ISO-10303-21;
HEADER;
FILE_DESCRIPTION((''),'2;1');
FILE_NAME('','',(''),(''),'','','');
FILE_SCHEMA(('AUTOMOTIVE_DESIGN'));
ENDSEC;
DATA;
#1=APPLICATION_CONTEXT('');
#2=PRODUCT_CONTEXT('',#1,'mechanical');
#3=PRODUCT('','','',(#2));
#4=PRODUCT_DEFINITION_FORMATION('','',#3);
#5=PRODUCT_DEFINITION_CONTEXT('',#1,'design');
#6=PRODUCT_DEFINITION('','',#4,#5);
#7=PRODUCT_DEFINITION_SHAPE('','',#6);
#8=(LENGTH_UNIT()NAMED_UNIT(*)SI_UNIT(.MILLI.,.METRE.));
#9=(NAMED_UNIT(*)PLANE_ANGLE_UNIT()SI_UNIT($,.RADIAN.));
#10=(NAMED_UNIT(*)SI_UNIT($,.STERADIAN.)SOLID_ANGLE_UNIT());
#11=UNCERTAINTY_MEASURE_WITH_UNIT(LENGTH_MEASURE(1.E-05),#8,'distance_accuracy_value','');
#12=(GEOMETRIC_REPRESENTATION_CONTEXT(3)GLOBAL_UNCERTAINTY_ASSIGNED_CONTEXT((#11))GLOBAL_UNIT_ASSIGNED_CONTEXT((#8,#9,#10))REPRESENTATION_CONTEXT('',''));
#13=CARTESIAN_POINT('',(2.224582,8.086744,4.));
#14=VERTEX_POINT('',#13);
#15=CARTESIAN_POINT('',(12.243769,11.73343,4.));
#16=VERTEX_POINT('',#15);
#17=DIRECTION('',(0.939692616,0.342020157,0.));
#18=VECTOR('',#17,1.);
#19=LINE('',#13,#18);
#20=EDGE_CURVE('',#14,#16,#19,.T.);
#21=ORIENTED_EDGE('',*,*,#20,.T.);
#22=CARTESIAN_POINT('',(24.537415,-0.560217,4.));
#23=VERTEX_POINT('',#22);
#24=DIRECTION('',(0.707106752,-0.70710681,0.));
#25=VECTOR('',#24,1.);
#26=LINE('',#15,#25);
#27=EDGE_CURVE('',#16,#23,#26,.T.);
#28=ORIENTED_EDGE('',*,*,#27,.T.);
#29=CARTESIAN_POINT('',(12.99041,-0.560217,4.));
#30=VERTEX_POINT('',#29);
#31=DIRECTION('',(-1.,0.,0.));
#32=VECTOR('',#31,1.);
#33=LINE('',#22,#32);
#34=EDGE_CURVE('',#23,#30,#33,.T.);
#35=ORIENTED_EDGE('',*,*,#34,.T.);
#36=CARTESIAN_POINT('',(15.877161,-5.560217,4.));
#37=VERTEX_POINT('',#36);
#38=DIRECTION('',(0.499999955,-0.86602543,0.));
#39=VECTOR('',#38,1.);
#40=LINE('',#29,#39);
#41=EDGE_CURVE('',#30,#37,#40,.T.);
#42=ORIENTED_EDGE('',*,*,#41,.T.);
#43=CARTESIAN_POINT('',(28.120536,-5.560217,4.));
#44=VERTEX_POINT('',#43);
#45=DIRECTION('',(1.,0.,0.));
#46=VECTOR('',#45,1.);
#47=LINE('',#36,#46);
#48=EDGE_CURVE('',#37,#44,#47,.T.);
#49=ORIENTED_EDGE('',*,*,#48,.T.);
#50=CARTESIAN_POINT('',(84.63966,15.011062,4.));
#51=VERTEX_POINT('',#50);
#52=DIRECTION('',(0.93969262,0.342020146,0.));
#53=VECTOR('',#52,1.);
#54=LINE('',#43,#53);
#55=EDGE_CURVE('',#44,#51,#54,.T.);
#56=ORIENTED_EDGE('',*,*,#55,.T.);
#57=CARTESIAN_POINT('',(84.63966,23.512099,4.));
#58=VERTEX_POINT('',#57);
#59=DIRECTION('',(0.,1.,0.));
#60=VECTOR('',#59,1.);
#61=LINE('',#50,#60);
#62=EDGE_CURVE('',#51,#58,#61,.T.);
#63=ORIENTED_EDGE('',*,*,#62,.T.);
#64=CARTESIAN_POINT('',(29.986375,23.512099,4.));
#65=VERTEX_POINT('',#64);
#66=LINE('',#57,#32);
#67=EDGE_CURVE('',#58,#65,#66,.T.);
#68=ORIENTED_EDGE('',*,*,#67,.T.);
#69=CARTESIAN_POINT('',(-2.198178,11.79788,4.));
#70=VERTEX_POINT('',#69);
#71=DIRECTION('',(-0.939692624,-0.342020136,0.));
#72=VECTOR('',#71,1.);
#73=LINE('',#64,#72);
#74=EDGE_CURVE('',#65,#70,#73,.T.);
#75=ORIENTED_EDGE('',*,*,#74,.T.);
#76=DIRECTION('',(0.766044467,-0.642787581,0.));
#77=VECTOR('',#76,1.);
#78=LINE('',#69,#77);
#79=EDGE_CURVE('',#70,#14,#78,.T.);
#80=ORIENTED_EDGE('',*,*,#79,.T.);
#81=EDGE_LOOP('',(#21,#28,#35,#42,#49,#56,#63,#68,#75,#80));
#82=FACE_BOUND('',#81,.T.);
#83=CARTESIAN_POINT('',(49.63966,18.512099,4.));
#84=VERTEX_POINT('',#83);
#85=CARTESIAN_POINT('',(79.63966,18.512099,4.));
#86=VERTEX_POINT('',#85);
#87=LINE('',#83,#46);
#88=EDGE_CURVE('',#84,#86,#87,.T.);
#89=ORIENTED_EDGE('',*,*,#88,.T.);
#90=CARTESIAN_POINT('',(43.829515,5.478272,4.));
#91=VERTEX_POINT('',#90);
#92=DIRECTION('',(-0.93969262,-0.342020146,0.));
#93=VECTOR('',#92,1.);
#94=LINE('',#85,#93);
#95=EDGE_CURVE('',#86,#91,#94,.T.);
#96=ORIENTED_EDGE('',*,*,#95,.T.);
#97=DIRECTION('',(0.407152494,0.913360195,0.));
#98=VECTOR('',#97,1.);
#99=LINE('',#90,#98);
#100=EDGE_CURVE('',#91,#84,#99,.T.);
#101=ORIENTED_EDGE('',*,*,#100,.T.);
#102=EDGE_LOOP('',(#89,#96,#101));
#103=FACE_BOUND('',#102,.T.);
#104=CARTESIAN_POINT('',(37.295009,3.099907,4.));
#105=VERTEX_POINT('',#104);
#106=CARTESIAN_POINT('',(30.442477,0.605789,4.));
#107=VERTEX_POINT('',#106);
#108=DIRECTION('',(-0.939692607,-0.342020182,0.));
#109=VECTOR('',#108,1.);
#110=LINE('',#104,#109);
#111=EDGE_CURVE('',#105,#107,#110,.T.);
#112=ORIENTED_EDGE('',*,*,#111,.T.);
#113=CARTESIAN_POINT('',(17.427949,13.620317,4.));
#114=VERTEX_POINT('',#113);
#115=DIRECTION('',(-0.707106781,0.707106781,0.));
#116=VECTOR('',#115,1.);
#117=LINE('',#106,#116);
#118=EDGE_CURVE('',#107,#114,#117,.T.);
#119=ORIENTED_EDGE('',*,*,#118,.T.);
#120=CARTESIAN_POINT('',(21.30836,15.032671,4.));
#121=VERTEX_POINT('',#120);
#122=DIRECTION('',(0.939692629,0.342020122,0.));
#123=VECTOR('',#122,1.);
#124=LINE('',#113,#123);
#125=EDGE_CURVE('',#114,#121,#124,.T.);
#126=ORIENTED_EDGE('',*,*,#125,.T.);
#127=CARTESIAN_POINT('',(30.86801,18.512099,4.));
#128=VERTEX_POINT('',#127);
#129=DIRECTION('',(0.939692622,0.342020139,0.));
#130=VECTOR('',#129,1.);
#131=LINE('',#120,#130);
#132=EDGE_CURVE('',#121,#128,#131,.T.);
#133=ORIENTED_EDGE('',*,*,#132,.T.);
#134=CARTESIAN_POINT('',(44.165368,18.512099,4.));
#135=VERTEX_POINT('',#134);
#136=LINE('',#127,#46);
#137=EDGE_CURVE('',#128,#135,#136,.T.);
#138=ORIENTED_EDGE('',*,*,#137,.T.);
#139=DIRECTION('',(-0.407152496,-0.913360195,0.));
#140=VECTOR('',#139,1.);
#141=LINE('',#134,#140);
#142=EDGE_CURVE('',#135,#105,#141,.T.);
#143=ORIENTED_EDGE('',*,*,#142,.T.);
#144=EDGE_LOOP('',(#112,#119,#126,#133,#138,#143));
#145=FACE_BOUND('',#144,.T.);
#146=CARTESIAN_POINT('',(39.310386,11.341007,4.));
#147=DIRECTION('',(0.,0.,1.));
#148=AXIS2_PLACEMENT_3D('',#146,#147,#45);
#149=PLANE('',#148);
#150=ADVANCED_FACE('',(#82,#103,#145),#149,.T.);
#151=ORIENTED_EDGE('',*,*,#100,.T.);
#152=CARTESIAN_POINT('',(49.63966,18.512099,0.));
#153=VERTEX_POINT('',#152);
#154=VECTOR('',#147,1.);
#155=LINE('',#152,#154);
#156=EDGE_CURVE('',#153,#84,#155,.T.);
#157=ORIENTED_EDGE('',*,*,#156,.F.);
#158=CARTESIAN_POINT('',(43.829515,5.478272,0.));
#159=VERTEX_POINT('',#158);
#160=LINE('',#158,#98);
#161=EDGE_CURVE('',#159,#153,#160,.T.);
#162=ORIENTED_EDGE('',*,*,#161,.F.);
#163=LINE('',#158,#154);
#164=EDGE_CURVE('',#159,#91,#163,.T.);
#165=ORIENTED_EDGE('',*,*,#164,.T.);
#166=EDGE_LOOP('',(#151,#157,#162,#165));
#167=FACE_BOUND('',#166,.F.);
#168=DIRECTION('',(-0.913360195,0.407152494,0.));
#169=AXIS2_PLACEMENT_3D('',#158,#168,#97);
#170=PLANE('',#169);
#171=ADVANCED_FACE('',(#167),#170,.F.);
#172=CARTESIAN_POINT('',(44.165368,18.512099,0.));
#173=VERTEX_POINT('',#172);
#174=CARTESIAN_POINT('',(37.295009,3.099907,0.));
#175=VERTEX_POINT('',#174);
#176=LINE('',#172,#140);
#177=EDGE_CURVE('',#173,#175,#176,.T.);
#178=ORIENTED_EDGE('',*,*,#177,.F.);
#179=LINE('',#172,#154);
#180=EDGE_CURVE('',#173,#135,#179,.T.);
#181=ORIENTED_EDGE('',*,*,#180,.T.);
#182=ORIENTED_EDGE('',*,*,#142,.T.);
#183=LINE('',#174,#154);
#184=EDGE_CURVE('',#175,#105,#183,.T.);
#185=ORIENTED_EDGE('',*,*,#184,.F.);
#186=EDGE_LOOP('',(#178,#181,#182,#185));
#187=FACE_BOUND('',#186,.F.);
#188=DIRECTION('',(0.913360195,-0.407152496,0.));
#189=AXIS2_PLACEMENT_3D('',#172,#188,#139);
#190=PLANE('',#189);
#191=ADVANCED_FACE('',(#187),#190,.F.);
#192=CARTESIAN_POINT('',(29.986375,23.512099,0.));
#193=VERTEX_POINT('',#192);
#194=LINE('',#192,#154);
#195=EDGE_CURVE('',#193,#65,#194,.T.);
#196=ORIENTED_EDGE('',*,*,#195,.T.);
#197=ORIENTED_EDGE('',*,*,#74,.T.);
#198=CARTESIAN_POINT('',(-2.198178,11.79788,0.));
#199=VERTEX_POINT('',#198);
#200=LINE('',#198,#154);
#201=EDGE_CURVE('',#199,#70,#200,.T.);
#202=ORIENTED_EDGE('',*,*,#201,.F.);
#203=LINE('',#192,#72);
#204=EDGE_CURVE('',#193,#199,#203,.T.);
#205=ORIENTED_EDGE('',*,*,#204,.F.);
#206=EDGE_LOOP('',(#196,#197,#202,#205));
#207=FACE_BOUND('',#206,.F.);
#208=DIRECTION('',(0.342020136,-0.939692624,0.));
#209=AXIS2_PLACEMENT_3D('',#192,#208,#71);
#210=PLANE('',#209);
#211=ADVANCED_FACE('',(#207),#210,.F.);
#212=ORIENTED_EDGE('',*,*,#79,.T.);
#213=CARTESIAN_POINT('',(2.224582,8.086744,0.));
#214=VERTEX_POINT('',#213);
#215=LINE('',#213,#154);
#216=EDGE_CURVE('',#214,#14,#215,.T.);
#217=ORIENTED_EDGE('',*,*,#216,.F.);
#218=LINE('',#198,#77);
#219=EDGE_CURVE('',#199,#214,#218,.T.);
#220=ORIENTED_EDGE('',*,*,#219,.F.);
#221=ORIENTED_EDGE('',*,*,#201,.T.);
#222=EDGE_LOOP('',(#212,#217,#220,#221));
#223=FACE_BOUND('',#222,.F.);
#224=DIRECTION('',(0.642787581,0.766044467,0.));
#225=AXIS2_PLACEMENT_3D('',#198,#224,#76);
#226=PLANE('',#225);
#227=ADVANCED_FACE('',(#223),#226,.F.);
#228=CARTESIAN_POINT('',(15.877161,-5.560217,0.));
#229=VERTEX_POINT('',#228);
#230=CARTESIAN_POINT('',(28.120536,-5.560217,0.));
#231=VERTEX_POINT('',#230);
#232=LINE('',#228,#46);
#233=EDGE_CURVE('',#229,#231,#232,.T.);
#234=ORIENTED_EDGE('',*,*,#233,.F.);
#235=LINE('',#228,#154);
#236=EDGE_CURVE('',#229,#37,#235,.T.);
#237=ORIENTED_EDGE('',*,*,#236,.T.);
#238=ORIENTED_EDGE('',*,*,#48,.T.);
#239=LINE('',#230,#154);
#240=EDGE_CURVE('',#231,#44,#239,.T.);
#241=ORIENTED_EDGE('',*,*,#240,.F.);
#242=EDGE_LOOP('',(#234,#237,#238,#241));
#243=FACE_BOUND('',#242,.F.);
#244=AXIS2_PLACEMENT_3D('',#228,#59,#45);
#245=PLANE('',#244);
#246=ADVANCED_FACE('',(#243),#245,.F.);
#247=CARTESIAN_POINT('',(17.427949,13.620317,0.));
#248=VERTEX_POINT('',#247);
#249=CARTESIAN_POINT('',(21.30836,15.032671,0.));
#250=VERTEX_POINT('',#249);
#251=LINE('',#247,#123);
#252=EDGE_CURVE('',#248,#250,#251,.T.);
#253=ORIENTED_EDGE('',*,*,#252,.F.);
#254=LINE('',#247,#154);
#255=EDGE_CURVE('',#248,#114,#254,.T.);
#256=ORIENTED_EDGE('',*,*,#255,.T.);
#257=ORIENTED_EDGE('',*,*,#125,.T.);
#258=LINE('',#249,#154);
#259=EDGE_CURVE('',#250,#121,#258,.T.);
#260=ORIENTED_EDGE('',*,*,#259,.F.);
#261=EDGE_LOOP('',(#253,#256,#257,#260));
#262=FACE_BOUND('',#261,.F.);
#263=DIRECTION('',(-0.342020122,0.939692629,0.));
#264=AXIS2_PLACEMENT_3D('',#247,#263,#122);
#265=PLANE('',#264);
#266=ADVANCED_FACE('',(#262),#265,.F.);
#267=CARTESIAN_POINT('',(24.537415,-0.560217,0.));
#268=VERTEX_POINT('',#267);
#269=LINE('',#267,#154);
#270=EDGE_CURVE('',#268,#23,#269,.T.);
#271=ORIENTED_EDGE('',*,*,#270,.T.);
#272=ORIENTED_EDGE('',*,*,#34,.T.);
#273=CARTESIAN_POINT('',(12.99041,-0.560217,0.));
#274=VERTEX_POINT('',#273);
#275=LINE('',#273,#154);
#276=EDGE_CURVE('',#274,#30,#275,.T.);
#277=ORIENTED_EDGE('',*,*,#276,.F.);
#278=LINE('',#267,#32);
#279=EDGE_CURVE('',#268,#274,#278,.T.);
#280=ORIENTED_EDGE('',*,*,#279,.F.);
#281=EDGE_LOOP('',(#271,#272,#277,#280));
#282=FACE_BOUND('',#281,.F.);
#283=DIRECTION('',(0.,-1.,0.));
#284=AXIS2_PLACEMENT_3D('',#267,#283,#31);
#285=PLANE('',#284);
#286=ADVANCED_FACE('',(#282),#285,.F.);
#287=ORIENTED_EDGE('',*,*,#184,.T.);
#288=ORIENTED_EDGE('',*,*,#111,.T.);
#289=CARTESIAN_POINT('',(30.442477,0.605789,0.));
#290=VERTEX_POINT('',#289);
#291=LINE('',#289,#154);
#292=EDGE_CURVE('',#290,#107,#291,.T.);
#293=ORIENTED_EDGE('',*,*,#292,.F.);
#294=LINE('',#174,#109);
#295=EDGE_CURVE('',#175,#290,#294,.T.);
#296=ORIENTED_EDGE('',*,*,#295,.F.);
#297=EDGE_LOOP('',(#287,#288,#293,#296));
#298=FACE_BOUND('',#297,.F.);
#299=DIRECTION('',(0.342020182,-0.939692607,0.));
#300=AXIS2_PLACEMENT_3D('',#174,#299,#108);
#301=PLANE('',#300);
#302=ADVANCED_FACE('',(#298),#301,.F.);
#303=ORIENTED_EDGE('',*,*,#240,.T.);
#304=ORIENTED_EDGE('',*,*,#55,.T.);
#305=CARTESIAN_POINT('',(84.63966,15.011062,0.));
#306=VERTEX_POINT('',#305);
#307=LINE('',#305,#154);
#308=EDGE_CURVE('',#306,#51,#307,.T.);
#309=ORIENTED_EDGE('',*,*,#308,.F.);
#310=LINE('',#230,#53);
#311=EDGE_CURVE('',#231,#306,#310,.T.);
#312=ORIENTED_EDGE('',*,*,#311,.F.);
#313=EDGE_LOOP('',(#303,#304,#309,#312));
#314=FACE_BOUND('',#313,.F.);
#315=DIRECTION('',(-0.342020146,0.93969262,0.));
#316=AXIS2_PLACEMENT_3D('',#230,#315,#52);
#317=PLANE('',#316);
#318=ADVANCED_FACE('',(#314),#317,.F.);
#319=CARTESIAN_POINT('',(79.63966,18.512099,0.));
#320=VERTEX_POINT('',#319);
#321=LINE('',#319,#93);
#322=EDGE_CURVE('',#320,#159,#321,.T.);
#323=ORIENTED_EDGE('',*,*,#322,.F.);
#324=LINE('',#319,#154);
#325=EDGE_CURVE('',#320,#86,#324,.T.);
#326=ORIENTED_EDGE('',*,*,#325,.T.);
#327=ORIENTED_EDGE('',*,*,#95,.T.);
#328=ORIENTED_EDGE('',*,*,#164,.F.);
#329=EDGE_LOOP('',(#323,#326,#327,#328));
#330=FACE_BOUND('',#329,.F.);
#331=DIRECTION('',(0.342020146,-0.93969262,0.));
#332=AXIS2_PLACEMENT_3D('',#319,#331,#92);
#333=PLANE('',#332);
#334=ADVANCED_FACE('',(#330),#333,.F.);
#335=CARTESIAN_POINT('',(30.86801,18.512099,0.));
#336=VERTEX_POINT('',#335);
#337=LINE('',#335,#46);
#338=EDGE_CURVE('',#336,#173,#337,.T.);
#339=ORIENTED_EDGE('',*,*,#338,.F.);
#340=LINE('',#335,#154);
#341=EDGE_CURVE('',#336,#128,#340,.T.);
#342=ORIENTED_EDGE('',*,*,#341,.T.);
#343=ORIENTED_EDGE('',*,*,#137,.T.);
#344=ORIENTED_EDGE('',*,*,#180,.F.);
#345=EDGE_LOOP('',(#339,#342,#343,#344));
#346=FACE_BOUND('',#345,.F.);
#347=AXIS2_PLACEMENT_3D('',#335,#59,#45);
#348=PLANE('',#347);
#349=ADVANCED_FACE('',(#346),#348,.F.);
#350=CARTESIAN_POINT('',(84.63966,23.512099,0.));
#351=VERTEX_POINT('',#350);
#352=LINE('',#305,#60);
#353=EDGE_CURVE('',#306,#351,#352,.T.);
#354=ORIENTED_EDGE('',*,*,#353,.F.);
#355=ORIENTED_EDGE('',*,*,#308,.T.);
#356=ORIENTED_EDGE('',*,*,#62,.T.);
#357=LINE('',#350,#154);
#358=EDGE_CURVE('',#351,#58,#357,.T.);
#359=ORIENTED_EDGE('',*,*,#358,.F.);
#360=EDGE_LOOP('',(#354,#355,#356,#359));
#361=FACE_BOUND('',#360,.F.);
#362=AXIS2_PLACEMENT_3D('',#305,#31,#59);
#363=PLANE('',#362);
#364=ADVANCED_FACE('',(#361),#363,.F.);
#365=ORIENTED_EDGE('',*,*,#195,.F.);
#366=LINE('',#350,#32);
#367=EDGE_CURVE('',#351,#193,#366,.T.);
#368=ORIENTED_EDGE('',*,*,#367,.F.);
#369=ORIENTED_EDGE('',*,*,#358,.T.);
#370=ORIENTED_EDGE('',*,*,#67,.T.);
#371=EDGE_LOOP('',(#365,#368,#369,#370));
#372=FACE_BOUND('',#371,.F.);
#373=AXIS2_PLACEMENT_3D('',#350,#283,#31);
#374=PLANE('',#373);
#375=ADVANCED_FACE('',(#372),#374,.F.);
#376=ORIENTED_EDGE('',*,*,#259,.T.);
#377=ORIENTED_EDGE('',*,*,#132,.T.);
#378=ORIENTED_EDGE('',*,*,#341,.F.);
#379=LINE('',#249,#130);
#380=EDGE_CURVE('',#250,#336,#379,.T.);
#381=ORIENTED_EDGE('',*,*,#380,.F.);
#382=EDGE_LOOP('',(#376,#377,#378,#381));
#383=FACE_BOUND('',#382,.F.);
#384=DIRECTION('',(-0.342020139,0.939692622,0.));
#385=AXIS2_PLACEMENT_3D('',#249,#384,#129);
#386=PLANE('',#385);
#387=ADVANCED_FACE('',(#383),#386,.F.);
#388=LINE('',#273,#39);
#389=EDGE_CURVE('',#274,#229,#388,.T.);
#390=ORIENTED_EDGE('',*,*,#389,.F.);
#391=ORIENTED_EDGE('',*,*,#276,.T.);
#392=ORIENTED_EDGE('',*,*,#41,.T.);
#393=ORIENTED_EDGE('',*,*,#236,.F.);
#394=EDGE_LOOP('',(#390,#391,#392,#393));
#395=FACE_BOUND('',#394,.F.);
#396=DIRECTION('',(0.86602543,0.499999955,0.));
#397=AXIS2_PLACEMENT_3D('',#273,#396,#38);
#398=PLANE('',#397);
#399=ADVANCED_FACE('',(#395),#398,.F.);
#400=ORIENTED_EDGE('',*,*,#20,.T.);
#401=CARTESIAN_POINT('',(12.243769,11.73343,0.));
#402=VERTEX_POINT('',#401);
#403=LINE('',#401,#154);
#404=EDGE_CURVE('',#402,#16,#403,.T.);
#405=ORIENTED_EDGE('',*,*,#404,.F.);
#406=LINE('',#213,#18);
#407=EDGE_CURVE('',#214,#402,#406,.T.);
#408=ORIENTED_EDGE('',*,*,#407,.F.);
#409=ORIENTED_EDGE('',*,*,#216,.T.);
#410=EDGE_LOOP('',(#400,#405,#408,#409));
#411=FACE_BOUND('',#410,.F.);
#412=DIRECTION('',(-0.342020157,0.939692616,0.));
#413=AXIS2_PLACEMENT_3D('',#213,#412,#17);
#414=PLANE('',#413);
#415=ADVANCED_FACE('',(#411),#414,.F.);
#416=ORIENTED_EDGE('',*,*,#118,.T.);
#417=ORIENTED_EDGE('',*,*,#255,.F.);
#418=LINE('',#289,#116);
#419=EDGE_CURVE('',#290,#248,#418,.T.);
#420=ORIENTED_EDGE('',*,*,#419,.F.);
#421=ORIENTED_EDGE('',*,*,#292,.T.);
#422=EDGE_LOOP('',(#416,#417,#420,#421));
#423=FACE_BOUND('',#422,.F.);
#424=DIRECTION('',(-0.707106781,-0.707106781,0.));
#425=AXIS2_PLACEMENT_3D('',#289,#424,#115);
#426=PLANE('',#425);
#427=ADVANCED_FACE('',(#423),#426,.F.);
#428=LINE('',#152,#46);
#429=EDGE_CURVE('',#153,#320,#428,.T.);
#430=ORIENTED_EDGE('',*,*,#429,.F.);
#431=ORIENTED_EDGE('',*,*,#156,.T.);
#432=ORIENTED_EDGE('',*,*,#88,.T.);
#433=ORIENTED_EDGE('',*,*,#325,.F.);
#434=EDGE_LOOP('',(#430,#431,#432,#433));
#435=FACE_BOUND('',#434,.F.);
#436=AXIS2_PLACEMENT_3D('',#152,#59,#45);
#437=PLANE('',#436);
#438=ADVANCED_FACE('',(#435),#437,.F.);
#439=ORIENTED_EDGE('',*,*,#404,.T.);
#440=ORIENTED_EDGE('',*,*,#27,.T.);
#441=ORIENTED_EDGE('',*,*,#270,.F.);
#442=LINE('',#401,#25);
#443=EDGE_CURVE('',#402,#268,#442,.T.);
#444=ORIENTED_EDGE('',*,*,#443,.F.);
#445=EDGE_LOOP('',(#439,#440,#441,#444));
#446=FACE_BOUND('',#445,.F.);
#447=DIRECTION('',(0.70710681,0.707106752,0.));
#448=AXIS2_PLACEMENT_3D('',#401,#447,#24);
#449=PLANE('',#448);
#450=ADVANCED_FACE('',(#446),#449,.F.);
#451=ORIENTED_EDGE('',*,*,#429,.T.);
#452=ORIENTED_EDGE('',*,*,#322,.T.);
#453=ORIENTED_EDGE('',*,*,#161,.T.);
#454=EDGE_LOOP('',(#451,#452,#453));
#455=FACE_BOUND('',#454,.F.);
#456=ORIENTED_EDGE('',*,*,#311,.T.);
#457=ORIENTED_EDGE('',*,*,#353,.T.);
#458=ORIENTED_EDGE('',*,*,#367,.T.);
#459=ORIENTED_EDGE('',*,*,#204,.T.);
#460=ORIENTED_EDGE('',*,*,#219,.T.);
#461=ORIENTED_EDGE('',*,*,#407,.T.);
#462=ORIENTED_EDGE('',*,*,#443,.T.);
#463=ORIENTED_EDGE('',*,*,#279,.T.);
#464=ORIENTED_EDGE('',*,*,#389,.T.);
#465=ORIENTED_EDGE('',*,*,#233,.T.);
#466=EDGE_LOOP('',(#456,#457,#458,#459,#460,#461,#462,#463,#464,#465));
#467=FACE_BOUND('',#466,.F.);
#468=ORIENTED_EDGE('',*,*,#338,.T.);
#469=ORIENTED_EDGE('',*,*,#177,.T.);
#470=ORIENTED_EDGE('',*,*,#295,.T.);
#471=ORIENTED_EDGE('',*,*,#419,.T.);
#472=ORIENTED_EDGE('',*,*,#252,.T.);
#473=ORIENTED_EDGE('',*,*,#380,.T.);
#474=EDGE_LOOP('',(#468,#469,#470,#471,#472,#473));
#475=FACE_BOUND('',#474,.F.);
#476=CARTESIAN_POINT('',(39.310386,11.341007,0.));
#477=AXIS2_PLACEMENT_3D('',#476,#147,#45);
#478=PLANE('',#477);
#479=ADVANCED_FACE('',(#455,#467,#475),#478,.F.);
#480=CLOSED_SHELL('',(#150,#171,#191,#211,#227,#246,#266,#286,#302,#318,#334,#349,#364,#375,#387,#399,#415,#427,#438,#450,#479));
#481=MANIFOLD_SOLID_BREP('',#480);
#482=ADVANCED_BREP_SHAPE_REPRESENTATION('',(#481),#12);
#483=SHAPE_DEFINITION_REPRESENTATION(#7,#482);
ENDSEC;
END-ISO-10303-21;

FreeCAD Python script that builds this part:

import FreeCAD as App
import Part
import Sketcher
from FreeCAD import Vector
Q = App.Units.Quantity


def add_polygon(sketch, points):
    """Adds a closed chain of lines whose ends are joined by coincident constraints."""
    first, n = sketch.GeometryCount, len(points)
    for a, b in zip(points, points[1:] + points[:1]):
        sketch.addGeometry(Part.LineSegment(App.Vector(*a, 0), App.Vector(*b, 0)), False)
    for i in range(n):
        sketch.addConstraint(Sketcher.Constraint("Coincident", first + i, 2, first + (i + 1) % n, 1))

doc = App.newDocument("Part")
params = doc.addObject("Spreadsheet::Sheet", "Params")
for row, (alias, value) in enumerate([
    ("sketch1_width", "30 mm"),
    ("pad1_length", "4 mm"),
], start=1):
    params.set(f"A{row}", alias)
    params.set(f"B{row}", "=" + value)
    params.setAlias(f"B{row}", alias)

body = doc.addObject("PartDesign::Body", "Body")

sketch1 = body.newObject("Sketcher::SketchObject", "Sketch")
sketch1.AttachmentSupport = (doc.getObject("XY_Plane"), [""])
sketch1.MapMode = "FlatFace"
add_polygon(sketch1, [(24.5, -0.6), (13, -0.6), (15.9, -5.6), (28.1, -5.6), (84.6, 15), (84.6, 23.5), (30, 23.5), (-2.2, 11.8), (2.2, 8.1), (12.2, 11.7)])
add_polygon(sketch1, [(21.3, 15), (30.9, 18.5), (44.2, 18.5), (37.3, 3.1), (30.4, 0.6), (17.4, 13.6)])
add_polygon(sketch1, [(79.6, 18.5), (43.8, 5.5), (49.6, 18.5)])
sketch1.addConstraint(Sketcher.Constraint("Horizontal", 0))
sketch1.addConstraint(Sketcher.Constraint("Horizontal", 2))
sketch1.addConstraint(Sketcher.Constraint("Vertical", 4))
sketch1.addConstraint(Sketcher.Constraint("Horizontal", 5))
sketch1.addConstraint(Sketcher.Constraint("Horizontal", 11))
sketch1.addConstraint(Sketcher.Constraint("Horizontal", 18))
sketch1.addConstraint(Sketcher.Constraint("Parallel", 3, 6))
sketch1.addConstraint(Sketcher.Constraint("Parallel", 6, 8))
sketch1.addConstraint(Sketcher.Constraint("Parallel", 8, 10))
sketch1.addConstraint(Sketcher.Constraint("Parallel", 10, 13))
sketch1.addConstraint(Sketcher.Constraint("Parallel", 9, 14))
sketch1.addConstraint(Sketcher.Constraint("Parallel", 13, 15))
sketch1.addConstraint(Sketcher.Constraint("Parallel", 15, 16))
sketch1.addConstraint(Sketcher.Constraint("Parallel", 12, 17))
sketch1.addConstraint(Sketcher.Constraint("Horizontal", 11, 2, 17, 2))
sketch1.addConstraint(Sketcher.Constraint("Equal", 1, 7))
sketch1.addConstraint(Sketcher.Constraint("DistanceX", 18, 1, 18, 2, 30.0))
sketch1.addConstraint(Sketcher.Constraint("Angle", 1, Q("-60.000003 deg")))
sketch1.addConstraint(Sketcher.Constraint("Angle", 3, Q("20 deg")))
sketch1.addConstraint(Sketcher.Constraint("Angle", 7, Q("-39.999998 deg")))
sketch1.addConstraint(Sketcher.Constraint("Angle", 9, Q("-45.000002 deg")))
sketch1.addConstraint(Sketcher.Constraint("DistanceY", 1, 2, 0, 2, 5.0))
sketch1.addConstraint(Sketcher.Constraint("DistanceY", 10, 2, 5, 2, 5.0))
sketch1.addConstraint(Sketcher.Constraint("DistanceX", 18, 2, 3, 2, 5.0))
sketch1.addConstraint(Sketcher.Constraint("DistanceX", 10, 2, 12, 2, 6.426999))
sketch1.addConstraint(Sketcher.Constraint("DistanceY", -1, 1, 4, 2, 23.512099))
sketch1.addConstraint(Sketcher.Constraint("DistanceX", 1, 2, 3, 2, 68.762499))
sketch1.addConstraint(Sketcher.Constraint("DistanceX", 0, 2, 10, 2, 17.8776))
sketch1.addConstraint(Sketcher.Constraint("DistanceX", 8, 2, 11, 2, 31.921599))
sketch1.addConstraint(Sketcher.Constraint("Distance", 9, 17.385842))
sketch1.addConstraint(Sketcher.Constraint("Distance", 16, 38.10836))
sketch1.addConstraint(Sketcher.Constraint("DistanceX", 0, 2, 0, 1, 11.547005))
sketch1.addConstraint(Sketcher.Constraint("DistanceX", 2, 1, 2, 2, 12.243375))
sketch1.addConstraint(Sketcher.Constraint("DistanceX", 5, 2, 5, 1, 54.653285))
sketch1.addConstraint(Sketcher.Constraint("DistanceX", -1, 1, 0, 2, 12.99041))
sketch1.addConstraint(Sketcher.Constraint("DistanceX", 6, 2, -1, 1, 2.198178))
sketch1.addConstraint(Sketcher.Constraint("DistanceY", -1, 1, 13, 2, 0.605789))
sketch1.addConstraint(Sketcher.Constraint("DistanceX", -1, 1, 15, 2, 21.30836))
sketch1.setExpression("Constraints[35]", "Params.sketch1_width")
pad1 = body.newObject("PartDesign::Pad", "Pad")
pad1.Profile = sketch1
pad1.setExpression("Length", "Params.pad1_length")

doc.recompute()
